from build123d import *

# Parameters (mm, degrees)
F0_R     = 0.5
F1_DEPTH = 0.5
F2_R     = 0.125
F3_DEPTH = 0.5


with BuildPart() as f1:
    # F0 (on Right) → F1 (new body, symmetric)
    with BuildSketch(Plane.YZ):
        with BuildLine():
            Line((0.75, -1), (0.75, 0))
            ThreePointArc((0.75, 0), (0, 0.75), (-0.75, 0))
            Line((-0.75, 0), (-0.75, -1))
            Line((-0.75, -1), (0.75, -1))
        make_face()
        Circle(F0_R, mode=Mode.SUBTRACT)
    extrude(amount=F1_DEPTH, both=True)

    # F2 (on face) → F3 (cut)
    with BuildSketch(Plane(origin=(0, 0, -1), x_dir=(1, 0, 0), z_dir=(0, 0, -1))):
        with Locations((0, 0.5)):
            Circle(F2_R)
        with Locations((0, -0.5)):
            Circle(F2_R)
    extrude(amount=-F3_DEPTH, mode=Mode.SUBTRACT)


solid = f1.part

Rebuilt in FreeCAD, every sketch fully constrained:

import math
import FreeCAD as App
import Part
import Sketcher
Q = App.Units.Quantity

doc = App.newDocument("Part")
body = doc.addObject("PartDesign::Body", "Body")

sketch1 = doc.addObject("Sketcher::SketchObject", "Sketch")
body.addObject(sketch1)
sketch1.AttachmentSupport = (doc.YZ_Plane, [""])
sketch1.MapMode = "FlatFace"
sketch1.addGeometry([
    Part.LineSegment(App.Vector(0.8, -1, 0), App.Vector(0.8, 0, 0)),
    Part.ArcOfCircle(Part.Circle(App.Vector(0, 0, 0), App.Vector(0, 0, 1), 0.8), math.radians(0), math.radians(180)),
    Part.LineSegment(App.Vector(-0.8, 0, 0), App.Vector(-0.8, -1, 0)),
    Part.LineSegment(App.Vector(-0.8, -1, 0), App.Vector(0.8, -1, 0)),
    Part.Circle(App.Vector(0, 0, 0), App.Vector(0, 0, 1), 0.5),
], False)
sketch1.addConstraint([
    Sketcher.Constraint("Tangent", 0, 2, 1, 1),
    Sketcher.Constraint("Tangent", 1, 2, 2, 1),
    Sketcher.Constraint("Coincident", 2, 2, 3, 1),
    Sketcher.Constraint("Coincident", 3, 2, 0, 1),
    Sketcher.Constraint("Vertical", 0),
    Sketcher.Constraint("Vertical", 2),
    Sketcher.Constraint("Horizontal", 3),
    Sketcher.Constraint("Coincident", 1, 3, -1, 1),
    Sketcher.Constraint("Coincident", 4, 3, -1, 1),
    Sketcher.Constraint("Diameter", 4, Q("1 mm")),
    Sketcher.Constraint("DistanceY", 0, 1, 0, 2, Q("1 mm")),
    Sketcher.Constraint("Radius", 1, Q("0.75 mm")),
])
pad1 = doc.addObject("PartDesign::Pad", "Pad")
body.addObject(pad1)
pad1.Profile = sketch1
pad1.Length = 1
pad1.Midplane = True

sketch2 = doc.addObject("Sketcher::SketchObject", "Sketch001")
body.addObject(sketch2)
sketch2.AttachmentSupport = (doc.XY_Plane, [""])
sketch2.MapMode = "FlatFace"
sketch2.AttachmentOffset = App.Placement(App.Vector(0, 0, -1), App.Rotation())
sketch2.addGeometry([
    Part.Circle(App.Vector(0, -0.5, 0), App.Vector(0, 0, 1), 0.12),
    Part.Circle(App.Vector(0, 0.5, 0), App.Vector(0, 0, 1), 0.12),
], False)
sketch2.addConstraint([
    Sketcher.Constraint("Equal", 0, 1),
    Sketcher.Constraint("Symmetric", 0, 3, 1, 3, -1, 1),
    Sketcher.Constraint("PointOnObject", 0, 3, -2),
    Sketcher.Constraint("Diameter", 0, Q("0.25 mm")),
    Sketcher.Constraint("DistanceY", 0, 3, 1, 3, Q("1 mm")),
])
pocket1 = doc.addObject("PartDesign::Pocket", "Pocket")
body.addObject(pocket1)
pocket1.Profile = sketch2
pocket1.Length = 0.5
pocket1.Reversed = True

doc.recompute()
